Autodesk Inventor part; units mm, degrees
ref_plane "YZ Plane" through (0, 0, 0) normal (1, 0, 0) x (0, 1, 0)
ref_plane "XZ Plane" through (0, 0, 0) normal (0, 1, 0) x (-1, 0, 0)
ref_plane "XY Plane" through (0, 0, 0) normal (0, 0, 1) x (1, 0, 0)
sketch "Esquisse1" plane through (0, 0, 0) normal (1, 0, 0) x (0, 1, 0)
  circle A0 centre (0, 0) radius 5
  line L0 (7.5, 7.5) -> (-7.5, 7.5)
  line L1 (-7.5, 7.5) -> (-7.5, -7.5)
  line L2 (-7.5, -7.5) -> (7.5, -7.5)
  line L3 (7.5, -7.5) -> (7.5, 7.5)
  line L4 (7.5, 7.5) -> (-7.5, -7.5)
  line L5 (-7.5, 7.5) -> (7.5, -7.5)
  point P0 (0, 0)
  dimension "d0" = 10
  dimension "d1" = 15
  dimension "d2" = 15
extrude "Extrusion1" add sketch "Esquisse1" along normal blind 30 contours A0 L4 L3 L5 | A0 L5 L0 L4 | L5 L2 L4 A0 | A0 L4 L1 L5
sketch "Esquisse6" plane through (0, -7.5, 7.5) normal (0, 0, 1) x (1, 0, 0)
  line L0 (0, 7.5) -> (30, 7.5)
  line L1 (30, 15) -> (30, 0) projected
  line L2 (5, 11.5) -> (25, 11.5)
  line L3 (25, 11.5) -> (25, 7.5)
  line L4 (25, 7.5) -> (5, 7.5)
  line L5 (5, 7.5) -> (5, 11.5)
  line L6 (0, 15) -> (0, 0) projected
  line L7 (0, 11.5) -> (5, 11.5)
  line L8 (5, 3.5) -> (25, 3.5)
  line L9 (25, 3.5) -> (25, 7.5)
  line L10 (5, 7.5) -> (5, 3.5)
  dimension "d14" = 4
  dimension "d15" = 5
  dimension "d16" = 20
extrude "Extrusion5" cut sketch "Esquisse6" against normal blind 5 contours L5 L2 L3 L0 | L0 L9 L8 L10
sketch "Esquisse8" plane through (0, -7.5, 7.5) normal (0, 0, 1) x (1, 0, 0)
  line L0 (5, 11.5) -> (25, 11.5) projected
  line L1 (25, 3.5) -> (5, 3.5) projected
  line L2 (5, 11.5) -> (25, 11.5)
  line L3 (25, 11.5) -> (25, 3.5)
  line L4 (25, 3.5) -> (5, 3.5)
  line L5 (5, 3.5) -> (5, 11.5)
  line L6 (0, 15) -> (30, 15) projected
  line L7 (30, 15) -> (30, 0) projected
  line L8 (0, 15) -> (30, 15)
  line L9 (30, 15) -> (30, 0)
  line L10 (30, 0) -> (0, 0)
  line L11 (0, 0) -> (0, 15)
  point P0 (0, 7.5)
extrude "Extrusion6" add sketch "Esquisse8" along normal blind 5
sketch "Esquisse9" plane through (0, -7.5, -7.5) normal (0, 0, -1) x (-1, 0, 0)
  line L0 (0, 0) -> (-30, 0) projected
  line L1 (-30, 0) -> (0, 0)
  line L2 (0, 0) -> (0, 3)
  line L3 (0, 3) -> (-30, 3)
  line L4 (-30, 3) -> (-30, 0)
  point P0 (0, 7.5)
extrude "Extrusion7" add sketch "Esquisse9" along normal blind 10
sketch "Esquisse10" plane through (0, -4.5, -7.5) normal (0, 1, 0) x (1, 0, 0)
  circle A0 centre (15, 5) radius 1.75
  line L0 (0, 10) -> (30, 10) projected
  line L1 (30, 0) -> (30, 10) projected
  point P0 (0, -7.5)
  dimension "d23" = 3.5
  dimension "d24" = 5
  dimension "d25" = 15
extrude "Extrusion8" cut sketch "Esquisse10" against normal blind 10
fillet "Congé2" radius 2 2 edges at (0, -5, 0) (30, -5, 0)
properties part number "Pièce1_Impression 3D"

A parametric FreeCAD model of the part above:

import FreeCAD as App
import Part
import Sketcher

V = App.Vector


def edges_at(feature, points):
    """Names of the edges that pass closest to the given points."""
    edges = feature.Shape.Edges
    near = lambda p: min(range(len(edges)), key=lambda i: edges[i].distToShape(Part.Vertex(*p))[0])
    return sorted({f"Edge{near(p) + 1}" for p in points})

doc = App.newDocument("Part")
body = doc.addObject("PartDesign::Body", "Body")

# Sketch on YZ plane
sketch1 = body.newObject("Sketcher::SketchObject", "Sketch")
sketch1.AttachmentSupport = (doc.getObject("YZ_Plane"), [""])
sketch1.MapMode = "FlatFace"
sketch1.addGeometry([
    Part.LineSegment(V(8, -8, 0), V(8, 8, 0)),  # 0
    Part.LineSegment(V(8, 8, 0), V(-8, 8, 0)),  # 1
    Part.LineSegment(V(-8, 8, 0), V(-8, -8, 0)),  # 2
    Part.LineSegment(V(-8, -8, 0), V(8, -8, 0)),  # 3
    Part.Circle(V(0, 0, 0), V(0, 0, 1), 5),  # 4
], False)
sketch1.addConstraint([
    Sketcher.Constraint("Coincident", 0, 2, 1, 1),
    Sketcher.Constraint("Coincident", 1, 2, 2, 1),
    Sketcher.Constraint("Coincident", 2, 2, 3, 1),
    Sketcher.Constraint("Coincident", 3, 2, 0, 1),
    Sketcher.Constraint("Vertical", 0),
    Sketcher.Constraint("Horizontal", 1),
    Sketcher.Constraint("Vertical", 2),
    Sketcher.Constraint("Horizontal", 3),
    Sketcher.Constraint("Coincident", 4, 3, -1, 1),
    Sketcher.Constraint("Symmetric", 0, 2, 2, 2, -1, 1),
    Sketcher.Constraint("Equal", 3, 0),
    Sketcher.Constraint("Diameter", 4, 10.0),
    Sketcher.Constraint("DistanceX", 1, 2, 1, 1, 15.0),
])
pad1 = body.newObject("PartDesign::Pad", "Pad")
pad1.Profile = sketch1
pad1.Length = 30

# Sketch on XY plane
sketch2 = body.newObject("Sketcher::SketchObject", "Sketch001")
sketch2.AttachmentSupport = (doc.getObject("XY_Plane"), [""])
sketch2.MapMode = "FlatFace"
sketch2.AttachmentOffset = App.Placement(V(0, 0, 7.5), App.Rotation())
sketch2.addGeometry([
    Part.LineSegment(V(5, 4, 0), V(5, -4, 0)),
    Part.LineSegment(V(5, -4, 0), V(25, -4, 0)),
    Part.LineSegment(V(25, -4, 0), V(25, 4, 0)),
    Part.LineSegment(V(25, 4, 0), V(5, 4, 0)),
], False)
sketch2.addConstraint([
    Sketcher.Constraint("Coincident", 0, 2, 1, 1),
    Sketcher.Constraint("Coincident", 1, 2, 2, 1),
    Sketcher.Constraint("Coincident", 2, 2, 3, 1),
    Sketcher.Constraint("Coincident", 3, 2, 0, 1),
    Sketcher.Constraint("Vertical", 0),
    Sketcher.Constraint("Horizontal", 1),
    Sketcher.Constraint("Vertical", 2),
    Sketcher.Constraint("Horizontal", 3),
    Sketcher.Constraint("DistanceX", 1, 1, 1, 2, 20.0),
    Sketcher.Constraint("DistanceX", -1, 1, 0, 2, 5.0),
    Sketcher.Constraint("DistanceY", 0, 2, -1, 1, 4.0),
    Sketcher.Constraint("DistanceY", -1, 1, 2, 2, 4.0),
])
pocket1 = body.newObject("PartDesign::Pocket", "Pocket")
pocket1.Profile = sketch2
pocket1.Length = 5

# Sketch on XY plane
sketch3 = body.newObject("Sketcher::SketchObject", "Sketch002")
sketch3.AttachmentSupport = (doc.getObject("XY_Plane"), [""])
sketch3.MapMode = "FlatFace"
sketch3.AttachmentOffset = App.Placement(V(0, 0, 7.5), App.Rotation())
sketch3.addGeometry([
    Part.LineSegment(V(30, 8, 0), V(0, 8, 0)),  # 0
    Part.LineSegment(V(0, 8, 0), V(0, -8, 0)),  # 1
    Part.LineSegment(V(0, -8, 0), V(30, -8, 0)),  # 2
    Part.LineSegment(V(30, -8, 0), V(30, 8, 0)),  # 3
    Part.LineSegment(V(5, -4, 0), V(5, 4, 0)),  # 4
    Part.LineSegment(V(5, 4, 0), V(25, 4, 0)),  # 5
    Part.LineSegment(V(25, 4, 0), V(25, -4, 0)),  # 6
    Part.LineSegment(V(25, -4, 0), V(5, -4, 0)),  # 7
], False)
sketch3.addConstraint([
    Sketcher.Constraint("Coincident", 0, 2, 1, 1),
    Sketcher.Constraint("Coincident", 1, 2, 2, 1),
    Sketcher.Constraint("Coincident", 2, 2, 3, 1),
    Sketcher.Constraint("Coincident", 3, 2, 0, 1),
    Sketcher.Constraint("Coincident", 4, 2, 5, 1),
    Sketcher.Constraint("Coincident", 5, 2, 6, 1),
    Sketcher.Constraint("Coincident", 6, 2, 7, 1),
    Sketcher.Constraint("Coincident", 7, 2, 4, 1),
    Sketcher.Constraint("Horizontal", 0),
    Sketcher.Constraint("Vertical", 1),
    Sketcher.Constraint("Horizontal", 2),
    Sketcher.Constraint("Vertical", 3),
    Sketcher.Constraint("Vertical", 4),
    Sketcher.Constraint("Horizontal", 5),
    Sketcher.Constraint("Vertical", 6),
    Sketcher.Constraint("Horizontal", 7),
    Sketcher.Constraint("Symmetric", 0, 2, 1, 2, -1, 1),
    Sketcher.Constraint("DistanceX", 0, 2, 0, 1, 30.0),
    Sketcher.Constraint("DistanceX", 5, 1, 5, 2, 20.0),
    Sketcher.Constraint("DistanceY", 1, 2, 1, 1, 15.0),
    Sketcher.Constraint("DistanceY", 4, 1, 4, 2, 8.0),
    Sketcher.Constraint("DistanceX", -1, 1, 4, 2, 5.0),
    Sketcher.Constraint("DistanceY", -1, 1, 4, 2, 4.0),
])
pad2 = body.newObject("PartDesign::Pad", "Pad001")
pad2.Profile = sketch3
pad2.Length = 5

# Sketch on XY plane
sketch4 = body.newObject("Sketcher::SketchObject", "Sketch003")
sketch4.AttachmentSupport = (doc.getObject("XY_Plane"), [""])
sketch4.MapMode = "FlatFace"
sketch4.AttachmentOffset = App.Placement(V(0, 0, -7.5), App.Rotation())
sketch4.addGeometry([
    Part.LineSegment(V(30, -7.5, 0), V(0, -7.5, 0)),
    Part.LineSegment(V(0, -7.5, 0), V(0, -4.5, 0)),
    Part.LineSegment(V(0, -4.5, 0), V(30, -4.5, 0)),
    Part.LineSegment(V(30, -4.5, 0), V(30, -7.5, 0)),
], False)
sketch4.addConstraint([
    Sketcher.Constraint("Coincident", 0, 2, 1, 1),
    Sketcher.Constraint("Coincident", 1, 2, 2, 1),
    Sketcher.Constraint("Coincident", 2, 2, 3, 1),
    Sketcher.Constraint("Coincident", 3, 2, 0, 1),
    Sketcher.Constraint("Horizontal", 0),
    Sketcher.Constraint("Vertical", 1),
    Sketcher.Constraint("Horizontal", 2),
    Sketcher.Constraint("Vertical", 3),
    Sketcher.Constraint("PointOnObject", 0, 2, -2),
    Sketcher.Constraint("DistanceX", 0, 2, 0, 1, 30.0),
    Sketcher.Constraint("DistanceY", 1, 1, 1, 2, 3.0),
    Sketcher.Constraint("DistanceY", 0, 2, -1, 1, 7.5),
])
pad3 = body.newObject("PartDesign::Pad", "Pad002")
pad3.Profile = sketch4
pad3.Length = 10
pad3.Reversed = True

# Sketch on XZ plane
sketch5 = body.newObject("Sketcher::SketchObject", "Sketch004")
sketch5.AttachmentSupport = (doc.getObject("XZ_Plane"), [""])
sketch5.MapMode = "FlatFace"
sketch5.AttachmentOffset = App.Placement(V(0, 0, 4.5), App.Rotation())
sketch5.addGeometry(Part.Circle(V(15, -12.5, 0), V(0, 0, 1), 1.8), False)
sketch5.addConstraint([
    Sketcher.Constraint("Diameter", 0, 3.5),
    Sketcher.Constraint("DistanceX", -1, 1, 0, 3, 15.0),
    Sketcher.Constraint("DistanceY", 0, 3, -1, 1, 12.5),
])
pocket2 = body.newObject("PartDesign::Pocket", "Pocket001")
pocket2.Profile = sketch5
pocket2.Length = 10
pocket2.Reversed = True
doc.recompute()

fillet = body.newObject("PartDesign::Fillet", "Fillet")
fillet.Base = (pocket2, edges_at(pocket2, [(0, -5, 0), (30, -5, 0)]))
fillet.Radius = 2

doc.recompute()
